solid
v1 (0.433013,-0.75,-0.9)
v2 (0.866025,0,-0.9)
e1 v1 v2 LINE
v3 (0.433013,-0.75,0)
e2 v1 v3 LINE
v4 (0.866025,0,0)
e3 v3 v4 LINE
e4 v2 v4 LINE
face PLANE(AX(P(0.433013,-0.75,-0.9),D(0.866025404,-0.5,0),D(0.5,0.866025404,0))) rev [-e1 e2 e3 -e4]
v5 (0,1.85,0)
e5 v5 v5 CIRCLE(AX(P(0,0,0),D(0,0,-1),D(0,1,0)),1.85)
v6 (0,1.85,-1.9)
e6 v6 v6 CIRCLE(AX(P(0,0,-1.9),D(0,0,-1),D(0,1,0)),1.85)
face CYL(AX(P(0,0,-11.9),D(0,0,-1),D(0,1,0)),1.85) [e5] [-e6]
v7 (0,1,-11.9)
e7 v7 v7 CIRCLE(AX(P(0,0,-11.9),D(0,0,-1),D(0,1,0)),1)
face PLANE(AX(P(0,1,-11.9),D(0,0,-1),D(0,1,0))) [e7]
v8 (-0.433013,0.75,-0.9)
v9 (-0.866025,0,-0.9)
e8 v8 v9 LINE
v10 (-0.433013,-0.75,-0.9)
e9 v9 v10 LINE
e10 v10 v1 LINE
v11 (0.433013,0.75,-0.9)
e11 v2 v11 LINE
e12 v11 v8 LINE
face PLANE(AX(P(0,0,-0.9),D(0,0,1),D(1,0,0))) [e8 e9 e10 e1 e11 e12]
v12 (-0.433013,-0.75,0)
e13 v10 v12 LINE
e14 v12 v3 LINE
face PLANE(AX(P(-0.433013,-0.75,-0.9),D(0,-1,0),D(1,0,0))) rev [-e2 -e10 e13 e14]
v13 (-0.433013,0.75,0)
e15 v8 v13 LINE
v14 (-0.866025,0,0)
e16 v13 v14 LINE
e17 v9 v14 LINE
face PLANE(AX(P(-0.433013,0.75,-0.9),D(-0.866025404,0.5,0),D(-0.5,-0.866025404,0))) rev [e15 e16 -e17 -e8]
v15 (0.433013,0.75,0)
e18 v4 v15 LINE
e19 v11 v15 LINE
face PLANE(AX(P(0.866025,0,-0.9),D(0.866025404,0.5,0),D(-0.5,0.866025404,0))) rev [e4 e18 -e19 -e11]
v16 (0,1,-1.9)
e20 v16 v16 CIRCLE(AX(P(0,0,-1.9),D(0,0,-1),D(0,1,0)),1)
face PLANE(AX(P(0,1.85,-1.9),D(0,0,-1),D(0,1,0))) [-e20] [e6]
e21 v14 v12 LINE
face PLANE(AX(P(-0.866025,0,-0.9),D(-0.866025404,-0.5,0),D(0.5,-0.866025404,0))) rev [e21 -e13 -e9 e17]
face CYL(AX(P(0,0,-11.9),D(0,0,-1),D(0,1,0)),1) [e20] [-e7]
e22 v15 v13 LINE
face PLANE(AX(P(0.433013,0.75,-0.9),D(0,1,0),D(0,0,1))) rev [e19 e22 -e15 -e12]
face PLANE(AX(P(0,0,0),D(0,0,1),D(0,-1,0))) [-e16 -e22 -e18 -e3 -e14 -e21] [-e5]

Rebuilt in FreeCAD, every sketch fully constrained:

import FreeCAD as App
import Part
import Sketcher
Q = App.Units.Quantity


def add_polygon(sketch, points):
    """Adds a closed chain of lines whose ends are joined by coincident constraints."""
    first, n = sketch.GeometryCount, len(points)
    for a, b in zip(points, points[1:] + points[:1]):
        sketch.addGeometry(Part.LineSegment(App.Vector(*a, 0), App.Vector(*b, 0)), False)
    for i in range(n):
        sketch.addConstraint(Sketcher.Constraint("Coincident", first + i, 2, first + (i + 1) % n, 1))

doc = App.newDocument("Part")
body = doc.addObject("PartDesign::Body", "Body")

sketch1 = body.newObject("Sketcher::SketchObject", "Sketch")
sketch1.AttachmentSupport = (doc.getObject("YZ_Plane"), [""])
sketch1.MapMode = "FlatFace"
add_polygon(sketch1, [(1.9, 0), (0, 0), (0, -11.9), (1, -11.9), (1, -1.9), (1.9, -1.9)])
sketch1.addConstraint([
    Sketcher.Constraint("Horizontal", 0),
    Sketcher.Constraint("Vertical", 1),
    Sketcher.Constraint("Horizontal", 2),
    Sketcher.Constraint("Vertical", 3),
    Sketcher.Constraint("Horizontal", 4),
    Sketcher.Constraint("Vertical", 5),
    Sketcher.Constraint("Coincident", 0, 2, -1, 1),
    Sketcher.Constraint("DistanceX", 2, 1, 2, 2, Q("1 mm")),
    Sketcher.Constraint("DistanceY", 3, 1, 3, 2, Q("10 mm")),
    Sketcher.Constraint("DistanceY", 1, 2, 1, 1, Q("11.9 mm")),
    Sketcher.Constraint("DistanceX", 0, 2, 0, 1, Q("1.85 mm")),
])
revolution = body.newObject("PartDesign::Revolution", "Revolution")
revolution.Profile = sketch1
revolution.ReferenceAxis = (sketch1, ["V_Axis"])
revolution.Angle = 360

sketch2 = body.newObject("Sketcher::SketchObject", "Sketch001")
sketch2.AttachmentSupport = (doc.getObject("XY_Plane"), [""])
sketch2.MapMode = "FlatFace"
add_polygon(sketch2, [(0.4, 0.8), (-0.4, 0.8), (-0.9, 0), (-0.4, -0.8), (0.4, -0.8), (0.9, 0)])
sketch2.addConstraint([
    Sketcher.Constraint("Horizontal", 0),
    Sketcher.Constraint("Horizontal", 3),
    Sketcher.Constraint("Symmetric", 0, 2, 3, 2, -1, 1),
    Sketcher.Constraint("Symmetric", 1, 2, 4, 2, -1, 1),
    Sketcher.Constraint("PointOnObject", 1, 2, -1),
    Sketcher.Constraint("Parallel", 2, 5),
    Sketcher.Constraint("Vertical", 0, 2, 2, 2),
    Sketcher.Constraint("Angle", 1, Q("-120 deg")),
    Sketcher.Constraint("DistanceY", 2, 2, 0, 2, Q("1.5 mm")),
    Sketcher.Constraint("DistanceX", 0, 2, 0, 1, Q("0.866025 mm")),
])
pocket1 = body.newObject("PartDesign::Pocket", "Pocket")
pocket1.Profile = sketch2
pocket1.Length = 0.9

doc.recompute()
